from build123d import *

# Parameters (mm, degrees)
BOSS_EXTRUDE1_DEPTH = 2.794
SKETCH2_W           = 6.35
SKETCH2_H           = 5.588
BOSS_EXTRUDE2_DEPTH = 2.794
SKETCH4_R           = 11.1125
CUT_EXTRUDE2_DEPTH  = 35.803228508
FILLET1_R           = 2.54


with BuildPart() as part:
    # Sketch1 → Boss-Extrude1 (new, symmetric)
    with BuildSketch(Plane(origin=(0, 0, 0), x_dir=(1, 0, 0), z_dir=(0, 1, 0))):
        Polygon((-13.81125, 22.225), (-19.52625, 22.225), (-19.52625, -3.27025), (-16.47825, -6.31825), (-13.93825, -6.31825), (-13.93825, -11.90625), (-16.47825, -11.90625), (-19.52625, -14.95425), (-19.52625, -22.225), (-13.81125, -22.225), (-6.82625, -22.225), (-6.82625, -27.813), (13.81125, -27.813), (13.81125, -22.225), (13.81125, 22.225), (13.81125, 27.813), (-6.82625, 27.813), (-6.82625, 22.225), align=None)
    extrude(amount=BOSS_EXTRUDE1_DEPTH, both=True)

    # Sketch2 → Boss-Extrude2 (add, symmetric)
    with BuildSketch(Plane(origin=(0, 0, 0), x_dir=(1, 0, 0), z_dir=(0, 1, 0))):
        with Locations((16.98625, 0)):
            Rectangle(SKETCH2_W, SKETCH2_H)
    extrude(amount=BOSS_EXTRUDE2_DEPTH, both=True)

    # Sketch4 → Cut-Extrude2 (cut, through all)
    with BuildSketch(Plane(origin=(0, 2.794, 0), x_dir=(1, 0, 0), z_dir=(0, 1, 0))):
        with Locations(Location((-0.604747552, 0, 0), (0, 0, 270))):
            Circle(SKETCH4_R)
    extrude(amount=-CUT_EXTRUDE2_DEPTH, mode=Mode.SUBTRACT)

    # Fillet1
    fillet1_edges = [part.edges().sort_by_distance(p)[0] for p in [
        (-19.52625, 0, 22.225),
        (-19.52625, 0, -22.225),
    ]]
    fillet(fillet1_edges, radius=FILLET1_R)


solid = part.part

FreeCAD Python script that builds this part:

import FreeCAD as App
import Part
import Sketcher
from FreeCAD import Vector
Q = App.Units.Quantity


def edges_at(feature, points):
    """Names of the edges that pass closest to the given points."""
    edges = feature.Shape.Edges
    near = lambda p: min(range(len(edges)), key=lambda i: edges[i].distToShape(Part.Vertex(*p))[0])
    return sorted({f"Edge{near(p) + 1}" for p in points})

doc = App.newDocument("Part")
body = doc.addObject("PartDesign::Body", "Body")

sketch1 = body.newObject("Sketcher::SketchObject", "Sketch")
sketch1.AttachmentSupport = (doc.getObject("XZ_Plane"), [""])
sketch1.MapMode = "FlatFace"
sketch1.addGeometry(Part.LineSegment(Vector(-19.5, -22.2, 0), Vector(-19.5, 3.3, 0)), False)
sketch1.addGeometry(Part.LineSegment(Vector(-19.5, 3.3, 0), Vector(-16.5, 6.3, 0)), False)
sketch1.addGeometry(Part.LineSegment(Vector(-16.5, 6.3, 0), Vector(-13.9, 6.3, 0)), False)
sketch1.addGeometry(Part.LineSegment(Vector(-13.9, 6.3, 0), Vector(-13.9, 11.9, 0)), False)
sketch1.addGeometry(Part.LineSegment(Vector(-13.9, 11.9, 0), Vector(-16.5, 11.9, 0)), False)
sketch1.addGeometry(Part.LineSegment(Vector(-16.5, 11.9, 0), Vector(-19.5, 15, 0)), False)
sketch1.addGeometry(Part.LineSegment(Vector(-19.5, 15, 0), Vector(-19.5, 22.2, 0)), False)
sketch1.addGeometry(Part.LineSegment(Vector(-19.5, 22.2, 0), Vector(-6.8, 22.2, 0)), False)
sketch1.addGeometry(Part.LineSegment(Vector(-6.8, 22.2, 0), Vector(-6.8, 27.8, 0)), False)
sketch1.addGeometry(Part.LineSegment(Vector(-6.8, 27.8, 0), Vector(13.8, 27.8, 0)), False)
sketch1.addGeometry(Part.LineSegment(Vector(13.8, 27.8, 0), Vector(13.8, -27.8, 0)), False)
sketch1.addGeometry(Part.LineSegment(Vector(13.8, -27.8, 0), Vector(-6.8, -27.8, 0)), False)
sketch1.addGeometry(Part.LineSegment(Vector(-6.8, -27.8, 0), Vector(-6.8, -22.2, 0)), False)
sketch1.addGeometry(Part.LineSegment(Vector(-6.8, -22.2, 0), Vector(-19.5, -22.2, 0)), False)
sketch1.addConstraint(Sketcher.Constraint("Coincident", 0, 2, 1, 1))
sketch1.addConstraint(Sketcher.Constraint("Coincident", 1, 2, 2, 1))
sketch1.addConstraint(Sketcher.Constraint("Coincident", 2, 2, 3, 1))
sketch1.addConstraint(Sketcher.Constraint("Coincident", 3, 2, 4, 1))
sketch1.addConstraint(Sketcher.Constraint("Coincident", 4, 2, 5, 1))
sketch1.addConstraint(Sketcher.Constraint("Coincident", 5, 2, 6, 1))
sketch1.addConstraint(Sketcher.Constraint("Coincident", 6, 2, 7, 1))
sketch1.addConstraint(Sketcher.Constraint("Coincident", 7, 2, 8, 1))
sketch1.addConstraint(Sketcher.Constraint("Coincident", 8, 2, 9, 1))
sketch1.addConstraint(Sketcher.Constraint("Coincident", 9, 2, 10, 1))
sketch1.addConstraint(Sketcher.Constraint("Coincident", 10, 2, 11, 1))
sketch1.addConstraint(Sketcher.Constraint("Coincident", 11, 2, 12, 1))
sketch1.addConstraint(Sketcher.Constraint("Coincident", 12, 2, 13, 1))
sketch1.addConstraint(Sketcher.Constraint("Coincident", 13, 2, 0, 1))
sketch1.addConstraint(Sketcher.Constraint("Vertical", 0))
sketch1.addConstraint(Sketcher.Constraint("Horizontal", 2))
sketch1.addConstraint(Sketcher.Constraint("Vertical", 3))
sketch1.addConstraint(Sketcher.Constraint("Horizontal", 4))
sketch1.addConstraint(Sketcher.Constraint("Vertical", 6))
sketch1.addConstraint(Sketcher.Constraint("Horizontal", 7))
sketch1.addConstraint(Sketcher.Constraint("Vertical", 8))
sketch1.addConstraint(Sketcher.Constraint("Horizontal", 9))
sketch1.addConstraint(Sketcher.Constraint("Vertical", 10))
sketch1.addConstraint(Sketcher.Constraint("Horizontal", 11))
sketch1.addConstraint(Sketcher.Constraint("Vertical", 12))
sketch1.addConstraint(Sketcher.Constraint("Horizontal", 13))
sketch1.addConstraint(Sketcher.Constraint("Symmetric", 8, 2, 11, 2, -1))
sketch1.addConstraint(Sketcher.Constraint("Symmetric", 6, 2, 13, 2, -1))
sketch1.addConstraint(Sketcher.Constraint("Perpendicular", 1, 5))
sketch1.addConstraint(Sketcher.Constraint("Vertical", 1, 2, 4, 2))
sketch1.addConstraint(Sketcher.Constraint("Equal", 3, 8))
sketch1.addConstraint(Sketcher.Constraint("Equal", 1, 5))
sketch1.addConstraint(Sketcher.Constraint("DistanceX", 2, 1, 2, 2, Q("0.1 in")))
sketch1.addConstraint(Sketcher.Constraint("DistanceX", 7, 1, 7, 2, Q("0.5 in")))
sketch1.addConstraint(Sketcher.Constraint("DistanceY", 3, 1, 3, 2, Q("0.22 in")))
sketch1.addConstraint(Sketcher.Constraint("DistanceY", 10, 2, 10, 1, Q("2.19 in")))
sketch1.addConstraint(Sketcher.Constraint("DistanceX", 9, 1, 9, 2, Q("0.8125 in")))
sketch1.addConstraint(Sketcher.Constraint("DistanceX", 0, 2, 1, 2, Q("0.12 in")))
sketch1.addConstraint(Sketcher.Constraint("DistanceY", -1, 1, 3, 2, Q("0.46875 in")))
sketch1.addConstraint(Sketcher.Constraint("DistanceX", 0, 2, -1, 1, 19.52625))
pad1 = body.newObject("PartDesign::Pad", "Pad")
pad1.Profile = sketch1
pad1.Length = Q("0.22 in")
pad1.Midplane = True

sketch2 = body.newObject("Sketcher::SketchObject", "Sketch001")
sketch2.AttachmentSupport = (doc.getObject("XZ_Plane"), [""])
sketch2.MapMode = "FlatFace"
sketch2.addGeometry(Part.LineSegment(Vector(14, -3, 0), Vector(14, 3, 0)), False)
sketch2.addGeometry(Part.LineSegment(Vector(14, 3, 0), Vector(20, 3, 0)), False)
sketch2.addGeometry(Part.LineSegment(Vector(20, 3, 0), Vector(20, -3, 0)), False)
sketch2.addGeometry(Part.LineSegment(Vector(20, -3, 0), Vector(14, -3, 0)), False)
sketch2.addConstraint(Sketcher.Constraint("Coincident", 0, 2, 1, 1))
sketch2.addConstraint(Sketcher.Constraint("Coincident", 1, 2, 2, 1))
sketch2.addConstraint(Sketcher.Constraint("Coincident", 2, 2, 3, 1))
sketch2.addConstraint(Sketcher.Constraint("Coincident", 3, 2, 0, 1))
sketch2.addConstraint(Sketcher.Constraint("Vertical", 0))
sketch2.addConstraint(Sketcher.Constraint("Horizontal", 1))
sketch2.addConstraint(Sketcher.Constraint("Vertical", 2))
sketch2.addConstraint(Sketcher.Constraint("Horizontal", 3))
sketch2.addConstraint(Sketcher.Constraint("DistanceX", 1, 1, 1, 2, Q("0.25 in")))
sketch2.addConstraint(Sketcher.Constraint("DistanceY", 0, 1, 0, 2, Q("0.22 in")))
sketch2.addConstraint(Sketcher.Constraint("DistanceY", -1, 1, 0, 2, Q("0.11 in")))
sketch2.addConstraint(Sketcher.Constraint("DistanceX", -1, 1, 0, 2, 13.81125))
pad2 = body.newObject("PartDesign::Pad", "Pad001")
pad2.Profile = sketch2
pad2.Length = Q("0.22 in")
pad2.Midplane = True

sketch3 = body.newObject("Sketcher::SketchObject", "Sketch002")
sketch3.AttachmentSupport = (doc.getObject("XZ_Plane"), [""])
sketch3.MapMode = "FlatFace"
sketch3.AttachmentOffset = App.Placement(Vector(0, 0, -0.11 * 25.4), App.Rotation())
sketch3.addGeometry(Part.Circle(Vector(-1, 0, 0), Vector(0, 0, 1), 11), False)
sketch3.addConstraint(Sketcher.Constraint("PointOnObject", 0, 3, -1))
sketch3.addConstraint(Sketcher.Constraint("Diameter", 0, Q("0.875 in")))
sketch3.addConstraint(Sketcher.Constraint("DistanceX", 0, 3, -1, 1, 0.604748))
pocket1 = body.newObject("PartDesign::Pocket", "Pocket")
pocket1.Profile = sketch3
pocket1.Type = "ThroughAll"
pocket1.Reversed = True
doc.recompute()

fillet = body.newObject("PartDesign::Fillet", "Fillet")
fillet.Base = (pocket1, edges_at(pocket1, [(-19.526, 0, 22.225), (-19.526, 0, -22.225)]))
fillet.Radius = Q("0.1 in")

doc.recompute()
